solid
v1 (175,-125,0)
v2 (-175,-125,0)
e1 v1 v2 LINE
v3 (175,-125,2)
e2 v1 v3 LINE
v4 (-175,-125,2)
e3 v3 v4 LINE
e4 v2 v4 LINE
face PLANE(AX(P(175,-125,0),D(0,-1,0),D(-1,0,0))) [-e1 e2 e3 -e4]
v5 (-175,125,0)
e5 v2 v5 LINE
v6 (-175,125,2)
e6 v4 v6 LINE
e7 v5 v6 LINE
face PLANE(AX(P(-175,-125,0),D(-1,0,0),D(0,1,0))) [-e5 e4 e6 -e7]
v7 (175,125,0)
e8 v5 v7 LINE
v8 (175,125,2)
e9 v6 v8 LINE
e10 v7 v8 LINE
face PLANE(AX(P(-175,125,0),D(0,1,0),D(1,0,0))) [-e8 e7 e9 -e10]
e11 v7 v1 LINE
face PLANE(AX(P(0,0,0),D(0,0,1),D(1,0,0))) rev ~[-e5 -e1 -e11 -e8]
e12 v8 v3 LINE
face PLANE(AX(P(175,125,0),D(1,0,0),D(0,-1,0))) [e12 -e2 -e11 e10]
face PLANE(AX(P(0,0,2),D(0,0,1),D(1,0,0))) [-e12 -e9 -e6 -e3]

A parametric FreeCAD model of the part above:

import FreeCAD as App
import Part
import Sketcher
from FreeCAD import Vector


def add_polygon(sketch, points):
    """Adds a closed chain of lines whose ends are joined by coincident constraints."""
    first, n = sketch.GeometryCount, len(points)
    for a, b in zip(points, points[1:] + points[:1]):
        sketch.addGeometry(Part.LineSegment(App.Vector(*a, 0), App.Vector(*b, 0)), False)
    for i in range(n):
        sketch.addConstraint(Sketcher.Constraint("Coincident", first + i, 2, first + (i + 1) % n, 1))

doc = App.newDocument("Part")
body = doc.addObject("PartDesign::Body", "Body")

# Sketch on XY plane
sketch1 = doc.addObject("Sketcher::SketchObject", "Sketch")
body.addObject(sketch1)
sketch1.AttachmentSupport = (doc.XY_Plane, [""])
sketch1.MapMode = "FlatFace"
add_polygon(sketch1, [(175, 125), (-175, 125), (-175, -125), (175, -125)])  # lines 0-3
sketch1.addConstraint([
    Sketcher.Constraint("Horizontal", 0),
    Sketcher.Constraint("Vertical", 1),
    Sketcher.Constraint("Horizontal", 2),
    Sketcher.Constraint("Vertical", 3),
    Sketcher.Constraint("Symmetric", 0, 2, 2, 2, -1, 1),
    Sketcher.Constraint("DistanceX", 0, 2, 0, 1, 350.0),
    Sketcher.Constraint("DistanceY", 1, 2, 1, 1, 250.0),
])
pad1 = doc.addObject("PartDesign::Pad", "Pad")
body.addObject(pad1)
pad1.Profile = sketch1
pad1.Length = 2

doc.recompute()
